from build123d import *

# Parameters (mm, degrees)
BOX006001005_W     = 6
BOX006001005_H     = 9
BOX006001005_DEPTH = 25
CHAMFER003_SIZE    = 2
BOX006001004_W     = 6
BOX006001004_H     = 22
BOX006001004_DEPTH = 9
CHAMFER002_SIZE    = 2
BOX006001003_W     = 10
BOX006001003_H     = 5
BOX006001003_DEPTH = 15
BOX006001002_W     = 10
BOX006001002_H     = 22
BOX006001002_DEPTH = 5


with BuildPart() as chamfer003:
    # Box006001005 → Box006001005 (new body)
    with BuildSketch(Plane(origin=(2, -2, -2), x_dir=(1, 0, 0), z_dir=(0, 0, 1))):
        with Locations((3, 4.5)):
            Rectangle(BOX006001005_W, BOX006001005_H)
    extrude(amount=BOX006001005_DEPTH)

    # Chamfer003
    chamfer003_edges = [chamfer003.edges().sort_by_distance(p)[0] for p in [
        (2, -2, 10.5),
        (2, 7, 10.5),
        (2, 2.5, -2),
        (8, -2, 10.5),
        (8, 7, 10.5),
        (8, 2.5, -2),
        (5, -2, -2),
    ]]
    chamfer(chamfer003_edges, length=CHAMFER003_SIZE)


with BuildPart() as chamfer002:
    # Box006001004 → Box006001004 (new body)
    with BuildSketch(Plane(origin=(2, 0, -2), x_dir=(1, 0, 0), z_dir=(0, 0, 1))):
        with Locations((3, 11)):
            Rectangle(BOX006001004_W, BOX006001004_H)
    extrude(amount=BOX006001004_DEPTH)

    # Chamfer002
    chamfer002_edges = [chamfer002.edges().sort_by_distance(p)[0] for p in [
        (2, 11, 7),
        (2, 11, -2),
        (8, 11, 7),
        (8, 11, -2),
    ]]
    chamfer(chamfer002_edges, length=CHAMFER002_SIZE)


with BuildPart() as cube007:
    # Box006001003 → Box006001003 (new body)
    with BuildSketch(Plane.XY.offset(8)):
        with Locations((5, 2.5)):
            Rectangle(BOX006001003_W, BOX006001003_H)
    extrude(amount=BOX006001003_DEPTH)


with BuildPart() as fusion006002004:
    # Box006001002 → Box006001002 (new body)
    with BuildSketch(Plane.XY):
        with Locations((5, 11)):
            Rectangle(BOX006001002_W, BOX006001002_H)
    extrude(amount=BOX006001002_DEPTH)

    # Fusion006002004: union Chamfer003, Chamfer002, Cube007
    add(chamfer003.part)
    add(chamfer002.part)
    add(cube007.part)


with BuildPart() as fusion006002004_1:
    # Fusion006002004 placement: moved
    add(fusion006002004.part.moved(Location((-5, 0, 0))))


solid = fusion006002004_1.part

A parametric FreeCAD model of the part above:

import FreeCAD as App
import Part
import Sketcher

V = App.Vector
Q = App.Units.Quantity


def edges_at(feature, points):
    """Names of the edges that pass closest to the given points."""
    edges = feature.Shape.Edges
    near = lambda p: min(range(len(edges)), key=lambda i: edges[i].distToShape(Part.Vertex(*p))[0])
    return sorted({f"Edge{near(p) + 1}" for p in points})


def add_polygon(sketch, points):
    """Adds a closed chain of lines whose ends are joined by coincident constraints."""
    first, n = sketch.GeometryCount, len(points)
    for a, b in zip(points, points[1:] + points[:1]):
        sketch.addGeometry(Part.LineSegment(App.Vector(*a, 0), App.Vector(*b, 0)), False)
    for i in range(n):
        sketch.addConstraint(Sketcher.Constraint("Coincident", first + i, 2, first + (i + 1) % n, 1))

doc = App.newDocument("Part")
body = doc.addObject("PartDesign::Body", "Body")

# Sketch on XY plane
sketch1 = doc.addObject("Sketcher::SketchObject", "Sketch")
body.addObject(sketch1)
sketch1.AttachmentSupport = (doc.XY_Plane, [""])
sketch1.MapMode = "FlatFace"
sketch1.AttachmentOffset = App.Placement(V(0, 0, -2), App.Rotation())
add_polygon(sketch1, [(2, 7), (2, -2), (8, -2), (8, 7)])  # lines 0-3
sketch1.addConstraint([
    Sketcher.Constraint("Vertical", 0),
    Sketcher.Constraint("Horizontal", 1),
    Sketcher.Constraint("Vertical", 2),
    Sketcher.Constraint("Horizontal", 3),
    Sketcher.Constraint("DistanceX", 1, 1, 1, 2, Q("6 mm")),
    Sketcher.Constraint("DistanceY", 0, 2, 0, 1, Q("9 mm")),
    Sketcher.Constraint("DistanceX", -1, 1, 0, 2, Q("2 mm")),
    Sketcher.Constraint("DistanceY", 0, 2, -1, 1, Q("2 mm")),
])
pad1 = doc.addObject("PartDesign::Pad", "Pad")
body.addObject(pad1)
pad1.Profile = sketch1
pad1.Length = 25
doc.recompute()

chamfer = doc.addObject("PartDesign::Chamfer", "Chamfer")
body.addObject(chamfer)
chamfer.Base = (pad1, edges_at(pad1, [
    (2, -2, 10.5),
    (2, 7, 10.5),
    (2, 2.5, -2),
    (8, -2, 10.5),
    (8, 7, 10.5),
    (8, 2.5, -2),
    (5, -2, -2),
]))
chamfer.Size = 2
body2 = doc.addObject("PartDesign::Body", "Body001")

# Sketch on XY plane
sketch2 = doc.addObject("Sketcher::SketchObject", "Sketch001")
body2.addObject(sketch2)
sketch2.AttachmentSupport = (doc.getObject("XY_Plane001"), [""])
sketch2.MapMode = "FlatFace"
sketch2.AttachmentOffset = App.Placement(V(0, 0, -2), App.Rotation())
add_polygon(sketch2, [(2, 22), (2, 0), (8, 0), (8, 22)])  # lines 0-3
sketch2.addConstraint([
    Sketcher.Constraint("Vertical", 0),
    Sketcher.Constraint("Horizontal", 1),
    Sketcher.Constraint("Vertical", 2),
    Sketcher.Constraint("Horizontal", 3),
    Sketcher.Constraint("PointOnObject", 0, 2, -1),
    Sketcher.Constraint("DistanceX", 1, 1, 1, 2, Q("6 mm")),
    Sketcher.Constraint("DistanceY", 0, 2, 0, 1, Q("22 mm")),
    Sketcher.Constraint("DistanceX", -1, 1, 0, 2, Q("2 mm")),
])
pad2 = doc.addObject("PartDesign::Pad", "Pad001")
body2.addObject(pad2)
pad2.Profile = sketch2
pad2.Length = 9
doc.recompute()

chamfer2 = doc.addObject("PartDesign::Chamfer", "Chamfer001")
body2.addObject(chamfer2)
chamfer2.Base = (pad2, edges_at(pad2, [
    (2, 11, 7),
    (2, 11, -2),
    (8, 11, 7),
    (8, 11, -2),
]))
chamfer2.Size = 2
body3 = doc.addObject("PartDesign::Body", "Body002")

# Sketch on XY plane
sketch3 = doc.addObject("Sketcher::SketchObject", "Sketch002")
body3.addObject(sketch3)
sketch3.AttachmentSupport = (doc.getObject("XY_Plane002"), [""])
sketch3.MapMode = "FlatFace"
sketch3.AttachmentOffset = App.Placement(V(0, 0, 8), App.Rotation())
add_polygon(sketch3, [(0, 5), (0, 0), (10, 0), (10, 5)])  # lines 0-3
sketch3.addConstraint([
    Sketcher.Constraint("Vertical", 0),
    Sketcher.Constraint("Horizontal", 1),
    Sketcher.Constraint("Vertical", 2),
    Sketcher.Constraint("Horizontal", 3),
    Sketcher.Constraint("Coincident", 0, 2, -1, 1),
    Sketcher.Constraint("DistanceX", 1, 1, 1, 2, Q("10 mm")),
    Sketcher.Constraint("DistanceY", 0, 2, 0, 1, Q("5 mm")),
])
pad3 = doc.addObject("PartDesign::Pad", "Pad002")
body3.addObject(pad3)
pad3.Profile = sketch3
pad3.Length = 15
body4 = doc.addObject("PartDesign::Body", "Body003")

# Sketch on XY plane
sketch4 = doc.addObject("Sketcher::SketchObject", "Sketch003")
body4.addObject(sketch4)
sketch4.AttachmentSupport = (doc.getObject("XY_Plane003"), [""])
sketch4.MapMode = "FlatFace"
add_polygon(sketch4, [(0, 22), (0, 0), (10, 0), (10, 22)])  # lines 0-3
sketch4.addConstraint([
    Sketcher.Constraint("Vertical", 0),
    Sketcher.Constraint("Horizontal", 1),
    Sketcher.Constraint("Vertical", 2),
    Sketcher.Constraint("Horizontal", 3),
    Sketcher.Constraint("Coincident", 0, 2, -1, 1),
    Sketcher.Constraint("DistanceX", 1, 1, 1, 2, Q("10 mm")),
    Sketcher.Constraint("DistanceY", 0, 2, 0, 1, Q("22 mm")),
])
pad4 = doc.addObject("PartDesign::Pad", "Pad003")
body4.addObject(pad4)
pad4.Profile = sketch4
pad4.Length = 5
doc.recompute()

boolean = doc.addObject("PartDesign::Boolean", "Boolean")
body4.addObject(boolean)
boolean.Type = "Fuse"
boolean.addObjects([body])
doc.recompute()

boolean2 = doc.addObject("PartDesign::Boolean", "Boolean001")
body4.addObject(boolean2)
boolean2.Type = "Fuse"
boolean2.addObjects([body2])
doc.recompute()

boolean3 = doc.addObject("PartDesign::Boolean", "Boolean002")
body4.addObject(boolean3)
boolean3.Type = "Fuse"
boolean3.addObjects([body3])
body5 = doc.addObject("PartDesign::Body", "Body004")
doc.recompute()

body4.Placement = App.Placement(V(-5, 0, 0), App.Rotation(V(0, 0, 1), 0))
boolean4 = doc.addObject("PartDesign::Boolean", "Boolean003")
body5.addObject(boolean4)
boolean4.Type = "Fuse"
boolean4.addObjects([body4])

doc.recompute()
